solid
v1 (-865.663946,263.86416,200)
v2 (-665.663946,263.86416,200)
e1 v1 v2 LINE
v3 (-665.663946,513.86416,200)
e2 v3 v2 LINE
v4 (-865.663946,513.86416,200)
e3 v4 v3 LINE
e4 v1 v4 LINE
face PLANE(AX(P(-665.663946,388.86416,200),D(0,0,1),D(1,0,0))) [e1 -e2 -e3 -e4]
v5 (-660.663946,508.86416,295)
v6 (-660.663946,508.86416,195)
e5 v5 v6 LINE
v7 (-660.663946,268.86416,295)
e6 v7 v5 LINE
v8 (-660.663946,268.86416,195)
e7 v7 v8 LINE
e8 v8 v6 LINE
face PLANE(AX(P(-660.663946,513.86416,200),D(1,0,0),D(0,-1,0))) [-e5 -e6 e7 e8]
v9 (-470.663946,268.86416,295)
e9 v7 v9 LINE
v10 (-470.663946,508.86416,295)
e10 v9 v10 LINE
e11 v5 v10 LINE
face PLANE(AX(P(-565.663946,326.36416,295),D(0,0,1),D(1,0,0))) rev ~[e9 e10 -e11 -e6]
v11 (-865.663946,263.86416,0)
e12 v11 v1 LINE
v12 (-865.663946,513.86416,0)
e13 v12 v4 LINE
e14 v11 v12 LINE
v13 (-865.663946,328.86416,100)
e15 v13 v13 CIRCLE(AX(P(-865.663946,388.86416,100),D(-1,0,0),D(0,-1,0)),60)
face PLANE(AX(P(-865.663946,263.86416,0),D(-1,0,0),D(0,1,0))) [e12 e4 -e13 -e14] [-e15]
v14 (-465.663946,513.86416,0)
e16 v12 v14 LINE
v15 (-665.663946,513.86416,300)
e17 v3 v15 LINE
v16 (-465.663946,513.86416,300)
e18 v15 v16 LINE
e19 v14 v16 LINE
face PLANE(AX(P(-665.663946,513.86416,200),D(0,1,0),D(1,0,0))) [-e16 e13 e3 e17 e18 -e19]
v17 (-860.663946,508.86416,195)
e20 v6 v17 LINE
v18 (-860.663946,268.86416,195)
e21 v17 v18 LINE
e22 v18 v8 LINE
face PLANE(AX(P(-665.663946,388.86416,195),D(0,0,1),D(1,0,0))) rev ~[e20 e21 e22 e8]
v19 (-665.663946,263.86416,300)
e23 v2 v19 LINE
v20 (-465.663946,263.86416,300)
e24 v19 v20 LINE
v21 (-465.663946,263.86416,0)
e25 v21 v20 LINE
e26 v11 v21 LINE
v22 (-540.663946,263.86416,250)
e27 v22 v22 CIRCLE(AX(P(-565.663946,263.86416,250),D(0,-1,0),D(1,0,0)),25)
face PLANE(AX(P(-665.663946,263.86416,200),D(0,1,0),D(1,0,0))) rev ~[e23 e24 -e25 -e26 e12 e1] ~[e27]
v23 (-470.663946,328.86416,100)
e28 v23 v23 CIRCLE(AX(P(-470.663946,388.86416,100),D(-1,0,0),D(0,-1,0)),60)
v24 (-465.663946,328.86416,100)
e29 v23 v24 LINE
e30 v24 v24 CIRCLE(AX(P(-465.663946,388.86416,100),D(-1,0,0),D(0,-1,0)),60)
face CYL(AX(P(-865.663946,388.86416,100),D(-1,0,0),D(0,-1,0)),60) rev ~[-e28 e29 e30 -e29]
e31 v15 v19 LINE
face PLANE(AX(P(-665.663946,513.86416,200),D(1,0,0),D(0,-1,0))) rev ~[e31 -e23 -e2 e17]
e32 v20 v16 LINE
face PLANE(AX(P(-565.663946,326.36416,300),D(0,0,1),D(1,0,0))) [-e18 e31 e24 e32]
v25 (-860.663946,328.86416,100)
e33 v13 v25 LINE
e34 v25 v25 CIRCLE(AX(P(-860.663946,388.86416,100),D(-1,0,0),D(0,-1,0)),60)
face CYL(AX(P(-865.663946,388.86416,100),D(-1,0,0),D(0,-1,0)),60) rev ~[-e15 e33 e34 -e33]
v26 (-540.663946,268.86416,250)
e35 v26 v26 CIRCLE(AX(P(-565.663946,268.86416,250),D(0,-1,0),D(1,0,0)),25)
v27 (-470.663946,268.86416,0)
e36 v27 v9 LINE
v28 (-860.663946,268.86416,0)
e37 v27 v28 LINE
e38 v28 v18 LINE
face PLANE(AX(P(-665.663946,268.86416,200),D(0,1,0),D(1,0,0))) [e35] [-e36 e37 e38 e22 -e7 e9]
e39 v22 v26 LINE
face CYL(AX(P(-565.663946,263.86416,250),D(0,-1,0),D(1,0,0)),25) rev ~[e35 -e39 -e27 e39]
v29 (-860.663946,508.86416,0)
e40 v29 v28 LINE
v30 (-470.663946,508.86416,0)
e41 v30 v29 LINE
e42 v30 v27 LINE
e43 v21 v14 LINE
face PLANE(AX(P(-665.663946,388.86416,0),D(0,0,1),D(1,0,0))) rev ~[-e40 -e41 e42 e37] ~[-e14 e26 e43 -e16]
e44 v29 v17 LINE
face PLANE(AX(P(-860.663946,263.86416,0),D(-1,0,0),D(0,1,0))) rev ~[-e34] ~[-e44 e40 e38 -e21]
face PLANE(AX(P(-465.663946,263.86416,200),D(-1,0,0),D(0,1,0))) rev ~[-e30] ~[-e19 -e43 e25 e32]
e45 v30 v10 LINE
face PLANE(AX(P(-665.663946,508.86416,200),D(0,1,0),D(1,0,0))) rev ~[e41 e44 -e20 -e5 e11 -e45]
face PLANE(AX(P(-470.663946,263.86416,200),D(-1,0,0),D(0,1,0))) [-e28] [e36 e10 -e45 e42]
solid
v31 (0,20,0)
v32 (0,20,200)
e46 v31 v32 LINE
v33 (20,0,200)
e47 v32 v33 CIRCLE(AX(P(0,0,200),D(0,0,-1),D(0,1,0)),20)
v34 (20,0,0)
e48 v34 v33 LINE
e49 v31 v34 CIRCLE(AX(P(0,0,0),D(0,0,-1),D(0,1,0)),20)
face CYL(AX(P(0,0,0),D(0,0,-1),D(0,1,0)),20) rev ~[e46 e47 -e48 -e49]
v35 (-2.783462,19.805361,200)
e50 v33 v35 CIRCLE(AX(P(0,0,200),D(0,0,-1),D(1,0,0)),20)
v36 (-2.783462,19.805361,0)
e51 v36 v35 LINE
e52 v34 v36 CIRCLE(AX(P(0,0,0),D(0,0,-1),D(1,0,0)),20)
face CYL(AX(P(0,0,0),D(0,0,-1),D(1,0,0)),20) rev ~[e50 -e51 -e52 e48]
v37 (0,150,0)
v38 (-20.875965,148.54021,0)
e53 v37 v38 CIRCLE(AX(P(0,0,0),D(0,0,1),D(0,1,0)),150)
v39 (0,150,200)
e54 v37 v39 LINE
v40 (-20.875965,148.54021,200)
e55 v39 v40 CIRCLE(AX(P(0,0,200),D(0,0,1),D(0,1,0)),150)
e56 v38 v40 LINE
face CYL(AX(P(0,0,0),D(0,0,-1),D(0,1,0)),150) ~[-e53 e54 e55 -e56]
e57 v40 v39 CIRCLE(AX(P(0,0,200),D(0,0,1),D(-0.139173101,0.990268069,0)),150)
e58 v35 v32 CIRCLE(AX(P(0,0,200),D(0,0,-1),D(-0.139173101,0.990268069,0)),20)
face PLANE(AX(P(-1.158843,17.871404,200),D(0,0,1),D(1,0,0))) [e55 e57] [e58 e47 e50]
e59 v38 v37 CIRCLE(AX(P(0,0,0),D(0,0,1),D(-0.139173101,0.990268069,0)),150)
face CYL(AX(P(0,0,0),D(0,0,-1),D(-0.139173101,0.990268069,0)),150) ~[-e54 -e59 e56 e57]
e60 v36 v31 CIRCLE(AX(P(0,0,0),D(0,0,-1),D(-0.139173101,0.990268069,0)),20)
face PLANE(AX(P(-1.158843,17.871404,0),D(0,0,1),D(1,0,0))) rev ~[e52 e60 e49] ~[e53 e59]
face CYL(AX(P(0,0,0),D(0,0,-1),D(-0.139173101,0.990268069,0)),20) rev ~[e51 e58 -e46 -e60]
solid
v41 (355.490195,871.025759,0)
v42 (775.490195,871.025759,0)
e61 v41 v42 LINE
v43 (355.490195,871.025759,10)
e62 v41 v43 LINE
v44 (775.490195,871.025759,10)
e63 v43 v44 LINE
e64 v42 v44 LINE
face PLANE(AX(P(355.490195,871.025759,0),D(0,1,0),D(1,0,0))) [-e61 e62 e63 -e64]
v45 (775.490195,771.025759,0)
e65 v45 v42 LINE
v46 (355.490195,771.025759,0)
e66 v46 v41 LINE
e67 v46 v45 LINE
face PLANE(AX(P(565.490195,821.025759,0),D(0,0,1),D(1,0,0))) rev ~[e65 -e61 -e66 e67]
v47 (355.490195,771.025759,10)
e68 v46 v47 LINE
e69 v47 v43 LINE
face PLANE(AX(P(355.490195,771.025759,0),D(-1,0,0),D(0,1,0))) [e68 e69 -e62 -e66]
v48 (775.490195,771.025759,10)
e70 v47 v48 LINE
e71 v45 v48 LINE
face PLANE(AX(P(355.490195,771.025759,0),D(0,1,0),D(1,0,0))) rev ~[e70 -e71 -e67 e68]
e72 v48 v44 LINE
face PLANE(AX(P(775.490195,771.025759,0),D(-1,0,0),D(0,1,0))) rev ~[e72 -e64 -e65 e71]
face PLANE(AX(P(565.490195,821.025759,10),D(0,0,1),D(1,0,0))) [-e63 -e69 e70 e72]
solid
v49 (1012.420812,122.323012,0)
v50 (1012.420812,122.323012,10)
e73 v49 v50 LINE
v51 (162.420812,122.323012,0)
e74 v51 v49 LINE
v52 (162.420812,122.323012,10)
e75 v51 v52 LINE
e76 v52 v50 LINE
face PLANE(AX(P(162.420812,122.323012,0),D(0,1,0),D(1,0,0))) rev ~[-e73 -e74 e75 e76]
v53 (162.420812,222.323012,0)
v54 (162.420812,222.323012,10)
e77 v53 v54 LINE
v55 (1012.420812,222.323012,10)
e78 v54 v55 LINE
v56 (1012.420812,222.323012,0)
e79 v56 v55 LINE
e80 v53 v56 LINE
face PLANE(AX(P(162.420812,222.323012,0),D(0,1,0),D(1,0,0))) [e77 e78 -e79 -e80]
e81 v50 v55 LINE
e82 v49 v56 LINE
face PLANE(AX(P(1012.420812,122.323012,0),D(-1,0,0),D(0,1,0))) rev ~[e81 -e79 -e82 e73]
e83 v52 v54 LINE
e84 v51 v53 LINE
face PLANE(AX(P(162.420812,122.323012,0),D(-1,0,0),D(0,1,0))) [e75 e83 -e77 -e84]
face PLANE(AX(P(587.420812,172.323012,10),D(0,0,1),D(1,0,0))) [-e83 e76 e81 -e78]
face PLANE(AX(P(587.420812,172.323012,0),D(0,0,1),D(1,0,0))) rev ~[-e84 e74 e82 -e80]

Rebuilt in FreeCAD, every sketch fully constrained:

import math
import FreeCAD as App
import Part
import Sketcher


def faces_at(feature, points):
    """Names of the faces that lie closest to the given points."""
    faces = feature.Shape.Faces
    near = lambda p: min(range(len(faces)), key=lambda i: faces[i].distToShape(Part.Vertex(*p))[0])
    return sorted({f"Face{near(p) + 1}" for p in points})


def add_polygon(sketch, points):
    """Adds a closed chain of lines whose ends are joined by coincident constraints."""
    first, n = sketch.GeometryCount, len(points)
    for a, b in zip(points, points[1:] + points[:1]):
        sketch.addGeometry(Part.LineSegment(App.Vector(*a, 0), App.Vector(*b, 0)), False)
    for i in range(n):
        sketch.addConstraint(Sketcher.Constraint("Coincident", first + i, 2, first + (i + 1) % n, 1))

doc = App.newDocument("Part")
params = doc.addObject("Spreadsheet::Sheet", "Params")
for row, (alias, value) in enumerate([
    ("sketch1_radius", "150 mm"),
    ("sketch1_radius2", "20 mm"),
    ("pad1_length", "200 mm"),
    ("sketch2_width", "850 mm"),
    ("sketch2_height", "100 mm"),
    ("pad2_length", "10 mm"),
    ("sketch3_width", "400 mm"),
    ("sketch3_height", "250 mm"),
    ("pad3_length", "200 mm"),
    ("sketch4_width", "200 mm"),
    ("sketch4_height", "250 mm"),
    ("pad4_length", "100 mm"),
    ("thickness_wall", "5 mm"),
    ("sketch5_diameter", "120 mm"),
    ("sketch6_diameter", "50 mm"),
    ("pocket2_length", "25 mm"),
    ("sketch7_width", "420 mm"),
    ("sketch7_height", "100 mm"),
    ("pad5_length", "10 mm"),
], start=1):
    params.set(f"A{row}", alias)
    params.set(f"B{row}", "=" + value)
    params.setAlias(f"B{row}", alias)

body = doc.addObject("PartDesign::Body", "Body")

# Sketch on XY plane
sketch1 = body.newObject("Sketcher::SketchObject", "Sketch")
sketch1.AttachmentSupport = (doc.getObject("XY_Plane"), [""])
sketch1.MapMode = "FlatFace"
sketch1.addGeometry(Part.ArcOfCircle(Part.Circle(App.Vector(0, 0, 0), App.Vector(0, 0, 1), 150), math.radians(98), math.radians(450)), False)
sketch1.addGeometry(Part.ArcOfCircle(Part.Circle(App.Vector(0, 0, 0), App.Vector(0, 0, 1), 150), math.radians(90), math.radians(98)), False)
sketch1.addGeometry(Part.ArcOfCircle(Part.Circle(App.Vector(0, 0, 0), App.Vector(0, 0, 1), 20), math.radians(0), math.radians(90)), False)
sketch1.addGeometry(Part.ArcOfCircle(Part.Circle(App.Vector(0, 0, 0), App.Vector(0, 0, 1), 20), math.radians(98), math.radians(360)), False)
sketch1.addGeometry(Part.ArcOfCircle(Part.Circle(App.Vector(0, 0, 0), App.Vector(0, 0, 1), 20), math.radians(90), math.radians(98)), False)
sketch1.addConstraint(Sketcher.Constraint("Tangent", 0, 1, 1, 2))
sketch1.addConstraint(Sketcher.Constraint("Coincident", 1, 1, 0, 2))
sketch1.addConstraint(Sketcher.Constraint("Tangent", 2, 1, 3, 2))
sketch1.addConstraint(Sketcher.Constraint("Tangent", 3, 1, 4, 2))
sketch1.addConstraint(Sketcher.Constraint("Tangent", 4, 1, 2, 2))
sketch1.addConstraint(Sketcher.Constraint("Coincident", 0, 3, -1, 1))
sketch1.addConstraint(Sketcher.Constraint("Coincident", 2, 3, -1, 1))
sketch1.addConstraint(Sketcher.Constraint("PointOnObject", 1, 1, -2))
sketch1.addConstraint(Sketcher.Constraint("PointOnObject", 2, 1, -1))
sketch1.addConstraint(Sketcher.Constraint("PointOnObject", 4, 1, -2))
sketch1.addConstraint(Sketcher.Constraint("Radius", 0, 150.0))
sketch1.addConstraint(Sketcher.Constraint("Radius", 2, 20.0))
sketch1.addConstraint(Sketcher.Constraint("DistanceY", -1, 1, 0, 1, 148.54021))
sketch1.addConstraint(Sketcher.Constraint("DistanceY", -1, 1, 3, 1, 19.805361))
sketch1.setExpression("Constraints[10]", "Params.sketch1_radius")
sketch1.setExpression("Constraints[11]", "Params.sketch1_radius2")
pad1 = body.newObject("PartDesign::Pad", "Pad")
pad1.Profile = sketch1
pad1.setExpression("Length", "Params.pad1_length")
body2 = doc.addObject("PartDesign::Body", "Body001")

# Sketch on XY plane
sketch2 = body2.newObject("Sketcher::SketchObject", "Sketch001")
sketch2.AttachmentSupport = (doc.getObject("XY_Plane001"), [""])
sketch2.MapMode = "FlatFace"
add_polygon(sketch2, [(162, 222), (162, 122), (1012, 122), (1012, 222)])  # lines 0-3
sketch2.addConstraint(Sketcher.Constraint("Vertical", 0))
sketch2.addConstraint(Sketcher.Constraint("Horizontal", 1))
sketch2.addConstraint(Sketcher.Constraint("Vertical", 2))
sketch2.addConstraint(Sketcher.Constraint("Horizontal", 3))
sketch2.addConstraint(Sketcher.Constraint("DistanceX", 1, 1, 1, 2, 850.0))
sketch2.addConstraint(Sketcher.Constraint("DistanceY", 0, 2, 0, 1, 100.0))
sketch2.addConstraint(Sketcher.Constraint("DistanceX", -1, 1, 0, 2, 162.420812))
sketch2.addConstraint(Sketcher.Constraint("DistanceY", -1, 1, 0, 2, 122.323012))
sketch2.setExpression("Constraints[8]", "Params.sketch2_width")
sketch2.setExpression("Constraints[9]", "Params.sketch2_height")
pad2 = body2.newObject("PartDesign::Pad", "Pad001")
pad2.Profile = sketch2
pad2.setExpression("Length", "Params.pad2_length")
body3 = doc.addObject("PartDesign::Body", "Body002")

# Sketch on XY plane
sketch3 = body3.newObject("Sketcher::SketchObject", "Sketch002")
sketch3.AttachmentSupport = (doc.getObject("XY_Plane002"), [""])
sketch3.MapMode = "FlatFace"
add_polygon(sketch3, [(-866, 514), (-866, 264), (-466, 264), (-466, 514)])  # lines 0-3
sketch3.addConstraint(Sketcher.Constraint("Vertical", 0))
sketch3.addConstraint(Sketcher.Constraint("Horizontal", 1))
sketch3.addConstraint(Sketcher.Constraint("Vertical", 2))
sketch3.addConstraint(Sketcher.Constraint("Horizontal", 3))
sketch3.addConstraint(Sketcher.Constraint("DistanceX", 1, 1, 1, 2, 400.0))
sketch3.addConstraint(Sketcher.Constraint("DistanceY", 0, 2, 0, 1, 250.0))
sketch3.addConstraint(Sketcher.Constraint("DistanceY", -1, 1, 0, 2, 263.86416))
sketch3.addConstraint(Sketcher.Constraint("DistanceX", 0, 2, -1, 1, 865.663946))
sketch3.setExpression("Constraints[8]", "Params.sketch3_width")
sketch3.setExpression("Constraints[9]", "Params.sketch3_height")
pad3 = body3.newObject("PartDesign::Pad", "Pad002")
pad3.Profile = sketch3
pad3.setExpression("Length", "Params.pad3_length")

# Sketch on XY plane
sketch4 = body3.newObject("Sketcher::SketchObject", "Sketch003")
sketch4.AttachmentSupport = (doc.getObject("XY_Plane002"), [""])
sketch4.MapMode = "FlatFace"
sketch4.AttachmentOffset = App.Placement(App.Vector(0, 0, 200), App.Rotation())
add_polygon(sketch4, [(-666, 264), (-466, 264), (-466, 514), (-666, 514)])  # lines 0-3
sketch4.addConstraint(Sketcher.Constraint("Horizontal", 0))
sketch4.addConstraint(Sketcher.Constraint("Vertical", 1))
sketch4.addConstraint(Sketcher.Constraint("Horizontal", 2))
sketch4.addConstraint(Sketcher.Constraint("Vertical", 3))
sketch4.addConstraint(Sketcher.Constraint("DistanceX", 0, 1, 0, 2, 200.0))
sketch4.addConstraint(Sketcher.Constraint("DistanceY", 1, 1, 1, 2, 250.0))
sketch4.addConstraint(Sketcher.Constraint("DistanceY", -1, 1, 0, 2, 263.86416))
sketch4.addConstraint(Sketcher.Constraint("DistanceX", 0, 2, -1, 1, 465.663946))
sketch4.setExpression("Constraints[8]", "Params.sketch4_width")
sketch4.setExpression("Constraints[9]", "Params.sketch4_height")
pad4 = body3.newObject("PartDesign::Pad", "Pad003")
pad4.Profile = sketch4
pad4.setExpression("Length", "Params.pad4_length")
doc.recompute()

thickness = body3.newObject("PartDesign::Thickness", "Thickness")
thickness.Base = (pad4, faces_at(pad4, [(-665.664, 388.864, 0)]))
thickness.setExpression("Value", "Params.thickness_wall")
thickness.Reversed = True
thickness.Join = "Intersection"

# Sketch on YZ plane
sketch5 = body3.newObject("Sketcher::SketchObject", "Sketch004")
sketch5.AttachmentSupport = (doc.getObject("YZ_Plane002"), [""])
sketch5.MapMode = "FlatFace"
sketch5.AttachmentOffset = App.Placement(App.Vector(0, 0, -865.663946), App.Rotation())
sketch5.addGeometry(Part.Circle(App.Vector(389, 100, 0), App.Vector(0, 0, 1), 60), False)
sketch5.addConstraint(Sketcher.Constraint("Diameter", 0, 120.0))
sketch5.addConstraint(Sketcher.Constraint("DistanceY", -1, 1, 0, 3, 100.0))
sketch5.addConstraint(Sketcher.Constraint("DistanceX", -1, 1, 0, 3, 388.86416))
sketch5.setExpression("Constraints[0]", "Params.sketch5_diameter")
pocket1 = body3.newObject("PartDesign::Pocket", "Pocket")
pocket1.Profile = sketch5
pocket1.Type = "ThroughAll"
pocket1.Reversed = True

# Sketch on XZ plane
sketch6 = body3.newObject("Sketcher::SketchObject", "Sketch005")
sketch6.AttachmentSupport = (doc.getObject("XZ_Plane002"), [""])
sketch6.MapMode = "FlatFace"
sketch6.AttachmentOffset = App.Placement(App.Vector(0, 0, -263.86416), App.Rotation())
sketch6.addGeometry(Part.Circle(App.Vector(-566, 250, 0), App.Vector(0, 0, 1), 25), False)
sketch6.addConstraint(Sketcher.Constraint("Diameter", 0, 50.0))
sketch6.addConstraint(Sketcher.Constraint("DistanceY", -1, 1, 0, 3, 250.0))
sketch6.addConstraint(Sketcher.Constraint("DistanceX", 0, 3, -1, 1, 565.663946))
sketch6.setExpression("Constraints[0]", "Params.sketch6_diameter")
pocket2 = body3.newObject("PartDesign::Pocket", "Pocket001")
pocket2.Profile = sketch6
pocket2.setExpression("Length", "Params.pocket2_length")
body4 = doc.addObject("PartDesign::Body", "Body003")

# Sketch on XY plane
sketch7 = body4.newObject("Sketcher::SketchObject", "Sketch006")
sketch7.AttachmentSupport = (doc.getObject("XY_Plane003"), [""])
sketch7.MapMode = "FlatFace"
add_polygon(sketch7, [(355, 871), (355, 771), (775, 771), (775, 871)])  # lines 0-3
sketch7.addConstraint(Sketcher.Constraint("Vertical", 0))
sketch7.addConstraint(Sketcher.Constraint("Horizontal", 1))
sketch7.addConstraint(Sketcher.Constraint("Vertical", 2))
sketch7.addConstraint(Sketcher.Constraint("Horizontal", 3))
sketch7.addConstraint(Sketcher.Constraint("DistanceX", 1, 1, 1, 2, 420.0))
sketch7.addConstraint(Sketcher.Constraint("DistanceY", 0, 2, 0, 1, 100.0))
sketch7.addConstraint(Sketcher.Constraint("DistanceY", -1, 1, 0, 2, 771.025759))
sketch7.addConstraint(Sketcher.Constraint("DistanceX", -1, 1, 0, 2, 355.490195))
sketch7.setExpression("Constraints[8]", "Params.sketch7_width")
sketch7.setExpression("Constraints[9]", "Params.sketch7_height")
pad5 = body4.newObject("PartDesign::Pad", "Pad004")
pad5.Profile = sketch7
pad5.setExpression("Length", "Params.pad5_length")

doc.recompute()
